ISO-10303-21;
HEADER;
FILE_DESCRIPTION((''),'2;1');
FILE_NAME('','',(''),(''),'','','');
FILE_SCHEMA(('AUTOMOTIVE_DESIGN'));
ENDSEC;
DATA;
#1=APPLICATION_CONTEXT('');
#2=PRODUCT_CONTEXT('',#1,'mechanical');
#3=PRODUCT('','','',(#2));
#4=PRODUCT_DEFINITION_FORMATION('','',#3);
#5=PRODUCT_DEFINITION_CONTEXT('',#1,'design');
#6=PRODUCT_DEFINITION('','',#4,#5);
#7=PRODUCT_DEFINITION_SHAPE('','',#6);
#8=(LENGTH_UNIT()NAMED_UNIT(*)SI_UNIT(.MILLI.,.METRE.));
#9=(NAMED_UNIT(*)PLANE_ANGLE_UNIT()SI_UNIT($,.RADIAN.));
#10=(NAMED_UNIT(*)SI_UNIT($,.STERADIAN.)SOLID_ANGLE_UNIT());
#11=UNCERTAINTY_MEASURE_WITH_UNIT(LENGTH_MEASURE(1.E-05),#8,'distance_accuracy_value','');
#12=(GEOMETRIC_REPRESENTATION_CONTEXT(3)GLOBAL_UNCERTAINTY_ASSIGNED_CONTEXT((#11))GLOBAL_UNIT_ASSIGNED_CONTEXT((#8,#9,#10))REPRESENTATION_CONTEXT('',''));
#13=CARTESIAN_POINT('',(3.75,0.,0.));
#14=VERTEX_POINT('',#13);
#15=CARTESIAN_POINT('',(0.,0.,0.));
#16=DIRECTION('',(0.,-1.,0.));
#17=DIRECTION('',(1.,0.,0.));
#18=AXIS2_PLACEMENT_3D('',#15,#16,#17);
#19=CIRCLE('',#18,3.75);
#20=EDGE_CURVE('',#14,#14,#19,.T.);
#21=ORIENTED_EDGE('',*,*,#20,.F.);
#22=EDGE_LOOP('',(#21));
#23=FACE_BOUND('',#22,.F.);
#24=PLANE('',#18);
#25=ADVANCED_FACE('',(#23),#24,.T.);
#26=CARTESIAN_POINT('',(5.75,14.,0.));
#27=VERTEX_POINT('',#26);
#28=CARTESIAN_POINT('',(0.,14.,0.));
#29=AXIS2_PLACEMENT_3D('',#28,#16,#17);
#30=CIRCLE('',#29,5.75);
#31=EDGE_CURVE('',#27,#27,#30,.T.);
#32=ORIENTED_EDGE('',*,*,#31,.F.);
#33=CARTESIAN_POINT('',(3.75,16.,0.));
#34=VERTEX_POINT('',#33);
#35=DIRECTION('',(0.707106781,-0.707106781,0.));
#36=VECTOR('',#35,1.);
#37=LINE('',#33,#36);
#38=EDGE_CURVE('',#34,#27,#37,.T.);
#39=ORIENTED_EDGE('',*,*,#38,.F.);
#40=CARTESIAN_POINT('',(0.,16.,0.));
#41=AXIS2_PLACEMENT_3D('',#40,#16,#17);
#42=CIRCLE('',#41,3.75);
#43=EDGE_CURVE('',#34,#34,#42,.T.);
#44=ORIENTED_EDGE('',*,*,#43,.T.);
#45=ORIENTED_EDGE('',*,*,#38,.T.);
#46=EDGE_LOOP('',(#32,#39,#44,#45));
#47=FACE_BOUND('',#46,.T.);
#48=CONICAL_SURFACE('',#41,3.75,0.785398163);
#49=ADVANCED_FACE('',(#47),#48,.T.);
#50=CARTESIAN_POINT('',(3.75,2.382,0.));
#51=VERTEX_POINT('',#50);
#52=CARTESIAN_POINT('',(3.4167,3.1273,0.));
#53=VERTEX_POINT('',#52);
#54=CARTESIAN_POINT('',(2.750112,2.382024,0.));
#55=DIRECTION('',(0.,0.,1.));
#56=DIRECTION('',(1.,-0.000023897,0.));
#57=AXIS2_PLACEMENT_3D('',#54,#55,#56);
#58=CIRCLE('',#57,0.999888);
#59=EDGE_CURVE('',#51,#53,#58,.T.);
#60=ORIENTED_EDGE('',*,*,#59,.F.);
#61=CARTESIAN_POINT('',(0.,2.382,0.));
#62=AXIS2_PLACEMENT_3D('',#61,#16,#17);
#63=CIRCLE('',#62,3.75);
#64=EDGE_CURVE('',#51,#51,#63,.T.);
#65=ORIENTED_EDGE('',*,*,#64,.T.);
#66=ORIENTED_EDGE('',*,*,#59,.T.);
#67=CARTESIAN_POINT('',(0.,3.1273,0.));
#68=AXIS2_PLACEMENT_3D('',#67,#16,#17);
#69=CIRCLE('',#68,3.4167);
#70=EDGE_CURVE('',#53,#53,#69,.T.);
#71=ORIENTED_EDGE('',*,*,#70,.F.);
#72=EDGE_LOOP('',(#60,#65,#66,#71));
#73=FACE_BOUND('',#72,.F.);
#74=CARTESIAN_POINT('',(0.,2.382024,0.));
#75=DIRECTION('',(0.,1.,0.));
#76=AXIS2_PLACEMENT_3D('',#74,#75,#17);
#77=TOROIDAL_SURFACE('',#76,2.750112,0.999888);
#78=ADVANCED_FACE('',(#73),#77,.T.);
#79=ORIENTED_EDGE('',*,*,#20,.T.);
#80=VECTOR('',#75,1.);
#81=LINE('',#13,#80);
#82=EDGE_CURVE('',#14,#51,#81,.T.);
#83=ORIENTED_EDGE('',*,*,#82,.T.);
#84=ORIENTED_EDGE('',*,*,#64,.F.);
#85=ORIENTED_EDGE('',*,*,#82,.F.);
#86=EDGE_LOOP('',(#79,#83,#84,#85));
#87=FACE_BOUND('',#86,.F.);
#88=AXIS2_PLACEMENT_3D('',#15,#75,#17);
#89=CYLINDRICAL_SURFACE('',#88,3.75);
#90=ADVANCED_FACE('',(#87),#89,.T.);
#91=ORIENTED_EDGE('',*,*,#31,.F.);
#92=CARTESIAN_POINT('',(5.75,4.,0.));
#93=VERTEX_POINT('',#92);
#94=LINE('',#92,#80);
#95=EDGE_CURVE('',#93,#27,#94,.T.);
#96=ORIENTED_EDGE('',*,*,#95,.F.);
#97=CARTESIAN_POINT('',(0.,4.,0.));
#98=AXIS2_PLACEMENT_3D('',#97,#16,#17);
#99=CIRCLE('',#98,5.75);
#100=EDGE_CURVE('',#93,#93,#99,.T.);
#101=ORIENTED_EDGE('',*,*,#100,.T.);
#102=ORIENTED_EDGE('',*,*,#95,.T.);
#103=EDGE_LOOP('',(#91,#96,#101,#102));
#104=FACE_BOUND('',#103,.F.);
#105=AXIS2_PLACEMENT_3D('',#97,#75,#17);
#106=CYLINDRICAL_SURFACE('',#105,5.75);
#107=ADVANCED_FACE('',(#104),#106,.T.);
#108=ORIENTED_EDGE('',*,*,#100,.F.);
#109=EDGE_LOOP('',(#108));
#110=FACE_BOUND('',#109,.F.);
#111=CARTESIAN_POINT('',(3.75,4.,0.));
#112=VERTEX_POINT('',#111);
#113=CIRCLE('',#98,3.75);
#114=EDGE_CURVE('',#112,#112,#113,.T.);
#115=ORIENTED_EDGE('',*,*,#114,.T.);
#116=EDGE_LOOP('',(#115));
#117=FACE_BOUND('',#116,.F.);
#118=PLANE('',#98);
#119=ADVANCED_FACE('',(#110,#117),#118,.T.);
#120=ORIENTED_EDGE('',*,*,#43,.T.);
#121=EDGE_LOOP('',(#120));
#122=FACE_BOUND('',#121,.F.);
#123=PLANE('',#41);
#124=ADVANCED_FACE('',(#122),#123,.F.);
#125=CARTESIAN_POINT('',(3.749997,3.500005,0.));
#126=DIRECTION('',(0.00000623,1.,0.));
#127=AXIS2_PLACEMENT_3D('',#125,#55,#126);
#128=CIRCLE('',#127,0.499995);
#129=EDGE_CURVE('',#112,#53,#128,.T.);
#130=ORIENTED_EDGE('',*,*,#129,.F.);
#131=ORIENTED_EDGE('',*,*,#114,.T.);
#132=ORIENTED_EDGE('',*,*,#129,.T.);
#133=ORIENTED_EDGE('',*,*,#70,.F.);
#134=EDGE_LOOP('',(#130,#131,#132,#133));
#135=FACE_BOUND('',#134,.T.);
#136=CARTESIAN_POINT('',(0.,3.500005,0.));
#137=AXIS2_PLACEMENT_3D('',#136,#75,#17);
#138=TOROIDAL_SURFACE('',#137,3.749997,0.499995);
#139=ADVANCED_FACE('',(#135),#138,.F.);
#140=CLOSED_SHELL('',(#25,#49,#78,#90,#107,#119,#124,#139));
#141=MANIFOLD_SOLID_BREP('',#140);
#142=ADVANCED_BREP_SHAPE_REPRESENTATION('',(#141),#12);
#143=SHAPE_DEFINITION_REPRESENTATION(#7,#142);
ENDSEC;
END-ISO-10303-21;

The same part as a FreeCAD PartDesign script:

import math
import FreeCAD as App
import Part
import Sketcher
from FreeCAD import Vector

doc = App.newDocument("Part")
body = doc.addObject("PartDesign::Body", "Body")

# Sketch on XY plane
sketch1 = body.newObject("Sketcher::SketchObject", "Sketch")
sketch1.AttachmentSupport = (doc.getObject("XY_Plane"), [""])
sketch1.MapMode = "FlatFace"
sketch1.addGeometry([
    Part.LineSegment(Vector(3.75, 16, 0), Vector(0, 16, 0)),  # 0
    Part.LineSegment(Vector(0, 16, 0), Vector(0, 0, 0)),  # 1
    Part.LineSegment(Vector(0, 0, 0), Vector(3.75, 0, 0)),  # 2
    Part.LineSegment(Vector(3.75, 0, 0), Vector(3.75, 2.382, 0)),  # 3
    Part.ArcOfCircle(Part.Circle(Vector(2.75, 2.382, 0), Vector(0, 0, 1), 1), math.radians(0), math.radians(48.186123)),  # 4
    Part.ArcOfCircle(Part.Circle(Vector(3.75, 3.5, 0), Vector(0, 0, 1), 0.5), math.radians(90), math.radians(228.194213)),  # 5
    Part.LineSegment(Vector(3.75, 4, 0), Vector(5.75, 4, 0)),  # 6
    Part.LineSegment(Vector(5.75, 4, 0), Vector(5.75, 14, 0)),  # 7
    Part.LineSegment(Vector(5.75, 14, 0), Vector(3.75, 16, 0)),  # 8
], False)
sketch1.addConstraint([
    Sketcher.Constraint("Coincident", 0, 2, 1, 1),
    Sketcher.Constraint("Coincident", 1, 2, 2, 1),
    Sketcher.Constraint("Coincident", 2, 2, 3, 1),
    Sketcher.Constraint("Tangent", 3, 2, 4, 1),
    Sketcher.Constraint("Tangent", 4, 2, 5, 2),
    Sketcher.Constraint("Tangent", 5, 1, 6, 1),
    Sketcher.Constraint("Coincident", 6, 2, 7, 1),
    Sketcher.Constraint("Coincident", 7, 2, 8, 1),
    Sketcher.Constraint("Coincident", 8, 2, 0, 1),
    Sketcher.Constraint("Horizontal", 0),
    Sketcher.Constraint("Vertical", 1),
    Sketcher.Constraint("Horizontal", 2),
    Sketcher.Constraint("Vertical", 3),
    Sketcher.Constraint("Horizontal", 6),
    Sketcher.Constraint("Vertical", 7),
    Sketcher.Constraint("Coincident", 1, 2, -1, 1),
    Sketcher.Constraint("Vertical", 5, 3, 2, 2),
    Sketcher.Constraint("Vertical", 5, 1, 8, 2),
    Sketcher.Constraint("Radius", 4, 1.0),
    Sketcher.Constraint("Radius", 5, 0.5),
    Sketcher.Constraint("DistanceX", 6, 1, 6, 2, 2.0),
    Sketcher.Constraint("DistanceY", -1, 1, 5, 1, 4.0),
    Sketcher.Constraint("DistanceY", 7, 2, 0, 2, 2.0),
    Sketcher.Constraint("DistanceY", 5, 1, 8, 2, 12.0),
    Sketcher.Constraint("DistanceX", 0, 2, 0, 1, 3.75),
])
revolution = body.newObject("PartDesign::Revolution", "Revolution")
revolution.Profile = sketch1
revolution.ReferenceAxis = (sketch1, ["V_Axis"])
revolution.Angle = 360

doc.recompute()
